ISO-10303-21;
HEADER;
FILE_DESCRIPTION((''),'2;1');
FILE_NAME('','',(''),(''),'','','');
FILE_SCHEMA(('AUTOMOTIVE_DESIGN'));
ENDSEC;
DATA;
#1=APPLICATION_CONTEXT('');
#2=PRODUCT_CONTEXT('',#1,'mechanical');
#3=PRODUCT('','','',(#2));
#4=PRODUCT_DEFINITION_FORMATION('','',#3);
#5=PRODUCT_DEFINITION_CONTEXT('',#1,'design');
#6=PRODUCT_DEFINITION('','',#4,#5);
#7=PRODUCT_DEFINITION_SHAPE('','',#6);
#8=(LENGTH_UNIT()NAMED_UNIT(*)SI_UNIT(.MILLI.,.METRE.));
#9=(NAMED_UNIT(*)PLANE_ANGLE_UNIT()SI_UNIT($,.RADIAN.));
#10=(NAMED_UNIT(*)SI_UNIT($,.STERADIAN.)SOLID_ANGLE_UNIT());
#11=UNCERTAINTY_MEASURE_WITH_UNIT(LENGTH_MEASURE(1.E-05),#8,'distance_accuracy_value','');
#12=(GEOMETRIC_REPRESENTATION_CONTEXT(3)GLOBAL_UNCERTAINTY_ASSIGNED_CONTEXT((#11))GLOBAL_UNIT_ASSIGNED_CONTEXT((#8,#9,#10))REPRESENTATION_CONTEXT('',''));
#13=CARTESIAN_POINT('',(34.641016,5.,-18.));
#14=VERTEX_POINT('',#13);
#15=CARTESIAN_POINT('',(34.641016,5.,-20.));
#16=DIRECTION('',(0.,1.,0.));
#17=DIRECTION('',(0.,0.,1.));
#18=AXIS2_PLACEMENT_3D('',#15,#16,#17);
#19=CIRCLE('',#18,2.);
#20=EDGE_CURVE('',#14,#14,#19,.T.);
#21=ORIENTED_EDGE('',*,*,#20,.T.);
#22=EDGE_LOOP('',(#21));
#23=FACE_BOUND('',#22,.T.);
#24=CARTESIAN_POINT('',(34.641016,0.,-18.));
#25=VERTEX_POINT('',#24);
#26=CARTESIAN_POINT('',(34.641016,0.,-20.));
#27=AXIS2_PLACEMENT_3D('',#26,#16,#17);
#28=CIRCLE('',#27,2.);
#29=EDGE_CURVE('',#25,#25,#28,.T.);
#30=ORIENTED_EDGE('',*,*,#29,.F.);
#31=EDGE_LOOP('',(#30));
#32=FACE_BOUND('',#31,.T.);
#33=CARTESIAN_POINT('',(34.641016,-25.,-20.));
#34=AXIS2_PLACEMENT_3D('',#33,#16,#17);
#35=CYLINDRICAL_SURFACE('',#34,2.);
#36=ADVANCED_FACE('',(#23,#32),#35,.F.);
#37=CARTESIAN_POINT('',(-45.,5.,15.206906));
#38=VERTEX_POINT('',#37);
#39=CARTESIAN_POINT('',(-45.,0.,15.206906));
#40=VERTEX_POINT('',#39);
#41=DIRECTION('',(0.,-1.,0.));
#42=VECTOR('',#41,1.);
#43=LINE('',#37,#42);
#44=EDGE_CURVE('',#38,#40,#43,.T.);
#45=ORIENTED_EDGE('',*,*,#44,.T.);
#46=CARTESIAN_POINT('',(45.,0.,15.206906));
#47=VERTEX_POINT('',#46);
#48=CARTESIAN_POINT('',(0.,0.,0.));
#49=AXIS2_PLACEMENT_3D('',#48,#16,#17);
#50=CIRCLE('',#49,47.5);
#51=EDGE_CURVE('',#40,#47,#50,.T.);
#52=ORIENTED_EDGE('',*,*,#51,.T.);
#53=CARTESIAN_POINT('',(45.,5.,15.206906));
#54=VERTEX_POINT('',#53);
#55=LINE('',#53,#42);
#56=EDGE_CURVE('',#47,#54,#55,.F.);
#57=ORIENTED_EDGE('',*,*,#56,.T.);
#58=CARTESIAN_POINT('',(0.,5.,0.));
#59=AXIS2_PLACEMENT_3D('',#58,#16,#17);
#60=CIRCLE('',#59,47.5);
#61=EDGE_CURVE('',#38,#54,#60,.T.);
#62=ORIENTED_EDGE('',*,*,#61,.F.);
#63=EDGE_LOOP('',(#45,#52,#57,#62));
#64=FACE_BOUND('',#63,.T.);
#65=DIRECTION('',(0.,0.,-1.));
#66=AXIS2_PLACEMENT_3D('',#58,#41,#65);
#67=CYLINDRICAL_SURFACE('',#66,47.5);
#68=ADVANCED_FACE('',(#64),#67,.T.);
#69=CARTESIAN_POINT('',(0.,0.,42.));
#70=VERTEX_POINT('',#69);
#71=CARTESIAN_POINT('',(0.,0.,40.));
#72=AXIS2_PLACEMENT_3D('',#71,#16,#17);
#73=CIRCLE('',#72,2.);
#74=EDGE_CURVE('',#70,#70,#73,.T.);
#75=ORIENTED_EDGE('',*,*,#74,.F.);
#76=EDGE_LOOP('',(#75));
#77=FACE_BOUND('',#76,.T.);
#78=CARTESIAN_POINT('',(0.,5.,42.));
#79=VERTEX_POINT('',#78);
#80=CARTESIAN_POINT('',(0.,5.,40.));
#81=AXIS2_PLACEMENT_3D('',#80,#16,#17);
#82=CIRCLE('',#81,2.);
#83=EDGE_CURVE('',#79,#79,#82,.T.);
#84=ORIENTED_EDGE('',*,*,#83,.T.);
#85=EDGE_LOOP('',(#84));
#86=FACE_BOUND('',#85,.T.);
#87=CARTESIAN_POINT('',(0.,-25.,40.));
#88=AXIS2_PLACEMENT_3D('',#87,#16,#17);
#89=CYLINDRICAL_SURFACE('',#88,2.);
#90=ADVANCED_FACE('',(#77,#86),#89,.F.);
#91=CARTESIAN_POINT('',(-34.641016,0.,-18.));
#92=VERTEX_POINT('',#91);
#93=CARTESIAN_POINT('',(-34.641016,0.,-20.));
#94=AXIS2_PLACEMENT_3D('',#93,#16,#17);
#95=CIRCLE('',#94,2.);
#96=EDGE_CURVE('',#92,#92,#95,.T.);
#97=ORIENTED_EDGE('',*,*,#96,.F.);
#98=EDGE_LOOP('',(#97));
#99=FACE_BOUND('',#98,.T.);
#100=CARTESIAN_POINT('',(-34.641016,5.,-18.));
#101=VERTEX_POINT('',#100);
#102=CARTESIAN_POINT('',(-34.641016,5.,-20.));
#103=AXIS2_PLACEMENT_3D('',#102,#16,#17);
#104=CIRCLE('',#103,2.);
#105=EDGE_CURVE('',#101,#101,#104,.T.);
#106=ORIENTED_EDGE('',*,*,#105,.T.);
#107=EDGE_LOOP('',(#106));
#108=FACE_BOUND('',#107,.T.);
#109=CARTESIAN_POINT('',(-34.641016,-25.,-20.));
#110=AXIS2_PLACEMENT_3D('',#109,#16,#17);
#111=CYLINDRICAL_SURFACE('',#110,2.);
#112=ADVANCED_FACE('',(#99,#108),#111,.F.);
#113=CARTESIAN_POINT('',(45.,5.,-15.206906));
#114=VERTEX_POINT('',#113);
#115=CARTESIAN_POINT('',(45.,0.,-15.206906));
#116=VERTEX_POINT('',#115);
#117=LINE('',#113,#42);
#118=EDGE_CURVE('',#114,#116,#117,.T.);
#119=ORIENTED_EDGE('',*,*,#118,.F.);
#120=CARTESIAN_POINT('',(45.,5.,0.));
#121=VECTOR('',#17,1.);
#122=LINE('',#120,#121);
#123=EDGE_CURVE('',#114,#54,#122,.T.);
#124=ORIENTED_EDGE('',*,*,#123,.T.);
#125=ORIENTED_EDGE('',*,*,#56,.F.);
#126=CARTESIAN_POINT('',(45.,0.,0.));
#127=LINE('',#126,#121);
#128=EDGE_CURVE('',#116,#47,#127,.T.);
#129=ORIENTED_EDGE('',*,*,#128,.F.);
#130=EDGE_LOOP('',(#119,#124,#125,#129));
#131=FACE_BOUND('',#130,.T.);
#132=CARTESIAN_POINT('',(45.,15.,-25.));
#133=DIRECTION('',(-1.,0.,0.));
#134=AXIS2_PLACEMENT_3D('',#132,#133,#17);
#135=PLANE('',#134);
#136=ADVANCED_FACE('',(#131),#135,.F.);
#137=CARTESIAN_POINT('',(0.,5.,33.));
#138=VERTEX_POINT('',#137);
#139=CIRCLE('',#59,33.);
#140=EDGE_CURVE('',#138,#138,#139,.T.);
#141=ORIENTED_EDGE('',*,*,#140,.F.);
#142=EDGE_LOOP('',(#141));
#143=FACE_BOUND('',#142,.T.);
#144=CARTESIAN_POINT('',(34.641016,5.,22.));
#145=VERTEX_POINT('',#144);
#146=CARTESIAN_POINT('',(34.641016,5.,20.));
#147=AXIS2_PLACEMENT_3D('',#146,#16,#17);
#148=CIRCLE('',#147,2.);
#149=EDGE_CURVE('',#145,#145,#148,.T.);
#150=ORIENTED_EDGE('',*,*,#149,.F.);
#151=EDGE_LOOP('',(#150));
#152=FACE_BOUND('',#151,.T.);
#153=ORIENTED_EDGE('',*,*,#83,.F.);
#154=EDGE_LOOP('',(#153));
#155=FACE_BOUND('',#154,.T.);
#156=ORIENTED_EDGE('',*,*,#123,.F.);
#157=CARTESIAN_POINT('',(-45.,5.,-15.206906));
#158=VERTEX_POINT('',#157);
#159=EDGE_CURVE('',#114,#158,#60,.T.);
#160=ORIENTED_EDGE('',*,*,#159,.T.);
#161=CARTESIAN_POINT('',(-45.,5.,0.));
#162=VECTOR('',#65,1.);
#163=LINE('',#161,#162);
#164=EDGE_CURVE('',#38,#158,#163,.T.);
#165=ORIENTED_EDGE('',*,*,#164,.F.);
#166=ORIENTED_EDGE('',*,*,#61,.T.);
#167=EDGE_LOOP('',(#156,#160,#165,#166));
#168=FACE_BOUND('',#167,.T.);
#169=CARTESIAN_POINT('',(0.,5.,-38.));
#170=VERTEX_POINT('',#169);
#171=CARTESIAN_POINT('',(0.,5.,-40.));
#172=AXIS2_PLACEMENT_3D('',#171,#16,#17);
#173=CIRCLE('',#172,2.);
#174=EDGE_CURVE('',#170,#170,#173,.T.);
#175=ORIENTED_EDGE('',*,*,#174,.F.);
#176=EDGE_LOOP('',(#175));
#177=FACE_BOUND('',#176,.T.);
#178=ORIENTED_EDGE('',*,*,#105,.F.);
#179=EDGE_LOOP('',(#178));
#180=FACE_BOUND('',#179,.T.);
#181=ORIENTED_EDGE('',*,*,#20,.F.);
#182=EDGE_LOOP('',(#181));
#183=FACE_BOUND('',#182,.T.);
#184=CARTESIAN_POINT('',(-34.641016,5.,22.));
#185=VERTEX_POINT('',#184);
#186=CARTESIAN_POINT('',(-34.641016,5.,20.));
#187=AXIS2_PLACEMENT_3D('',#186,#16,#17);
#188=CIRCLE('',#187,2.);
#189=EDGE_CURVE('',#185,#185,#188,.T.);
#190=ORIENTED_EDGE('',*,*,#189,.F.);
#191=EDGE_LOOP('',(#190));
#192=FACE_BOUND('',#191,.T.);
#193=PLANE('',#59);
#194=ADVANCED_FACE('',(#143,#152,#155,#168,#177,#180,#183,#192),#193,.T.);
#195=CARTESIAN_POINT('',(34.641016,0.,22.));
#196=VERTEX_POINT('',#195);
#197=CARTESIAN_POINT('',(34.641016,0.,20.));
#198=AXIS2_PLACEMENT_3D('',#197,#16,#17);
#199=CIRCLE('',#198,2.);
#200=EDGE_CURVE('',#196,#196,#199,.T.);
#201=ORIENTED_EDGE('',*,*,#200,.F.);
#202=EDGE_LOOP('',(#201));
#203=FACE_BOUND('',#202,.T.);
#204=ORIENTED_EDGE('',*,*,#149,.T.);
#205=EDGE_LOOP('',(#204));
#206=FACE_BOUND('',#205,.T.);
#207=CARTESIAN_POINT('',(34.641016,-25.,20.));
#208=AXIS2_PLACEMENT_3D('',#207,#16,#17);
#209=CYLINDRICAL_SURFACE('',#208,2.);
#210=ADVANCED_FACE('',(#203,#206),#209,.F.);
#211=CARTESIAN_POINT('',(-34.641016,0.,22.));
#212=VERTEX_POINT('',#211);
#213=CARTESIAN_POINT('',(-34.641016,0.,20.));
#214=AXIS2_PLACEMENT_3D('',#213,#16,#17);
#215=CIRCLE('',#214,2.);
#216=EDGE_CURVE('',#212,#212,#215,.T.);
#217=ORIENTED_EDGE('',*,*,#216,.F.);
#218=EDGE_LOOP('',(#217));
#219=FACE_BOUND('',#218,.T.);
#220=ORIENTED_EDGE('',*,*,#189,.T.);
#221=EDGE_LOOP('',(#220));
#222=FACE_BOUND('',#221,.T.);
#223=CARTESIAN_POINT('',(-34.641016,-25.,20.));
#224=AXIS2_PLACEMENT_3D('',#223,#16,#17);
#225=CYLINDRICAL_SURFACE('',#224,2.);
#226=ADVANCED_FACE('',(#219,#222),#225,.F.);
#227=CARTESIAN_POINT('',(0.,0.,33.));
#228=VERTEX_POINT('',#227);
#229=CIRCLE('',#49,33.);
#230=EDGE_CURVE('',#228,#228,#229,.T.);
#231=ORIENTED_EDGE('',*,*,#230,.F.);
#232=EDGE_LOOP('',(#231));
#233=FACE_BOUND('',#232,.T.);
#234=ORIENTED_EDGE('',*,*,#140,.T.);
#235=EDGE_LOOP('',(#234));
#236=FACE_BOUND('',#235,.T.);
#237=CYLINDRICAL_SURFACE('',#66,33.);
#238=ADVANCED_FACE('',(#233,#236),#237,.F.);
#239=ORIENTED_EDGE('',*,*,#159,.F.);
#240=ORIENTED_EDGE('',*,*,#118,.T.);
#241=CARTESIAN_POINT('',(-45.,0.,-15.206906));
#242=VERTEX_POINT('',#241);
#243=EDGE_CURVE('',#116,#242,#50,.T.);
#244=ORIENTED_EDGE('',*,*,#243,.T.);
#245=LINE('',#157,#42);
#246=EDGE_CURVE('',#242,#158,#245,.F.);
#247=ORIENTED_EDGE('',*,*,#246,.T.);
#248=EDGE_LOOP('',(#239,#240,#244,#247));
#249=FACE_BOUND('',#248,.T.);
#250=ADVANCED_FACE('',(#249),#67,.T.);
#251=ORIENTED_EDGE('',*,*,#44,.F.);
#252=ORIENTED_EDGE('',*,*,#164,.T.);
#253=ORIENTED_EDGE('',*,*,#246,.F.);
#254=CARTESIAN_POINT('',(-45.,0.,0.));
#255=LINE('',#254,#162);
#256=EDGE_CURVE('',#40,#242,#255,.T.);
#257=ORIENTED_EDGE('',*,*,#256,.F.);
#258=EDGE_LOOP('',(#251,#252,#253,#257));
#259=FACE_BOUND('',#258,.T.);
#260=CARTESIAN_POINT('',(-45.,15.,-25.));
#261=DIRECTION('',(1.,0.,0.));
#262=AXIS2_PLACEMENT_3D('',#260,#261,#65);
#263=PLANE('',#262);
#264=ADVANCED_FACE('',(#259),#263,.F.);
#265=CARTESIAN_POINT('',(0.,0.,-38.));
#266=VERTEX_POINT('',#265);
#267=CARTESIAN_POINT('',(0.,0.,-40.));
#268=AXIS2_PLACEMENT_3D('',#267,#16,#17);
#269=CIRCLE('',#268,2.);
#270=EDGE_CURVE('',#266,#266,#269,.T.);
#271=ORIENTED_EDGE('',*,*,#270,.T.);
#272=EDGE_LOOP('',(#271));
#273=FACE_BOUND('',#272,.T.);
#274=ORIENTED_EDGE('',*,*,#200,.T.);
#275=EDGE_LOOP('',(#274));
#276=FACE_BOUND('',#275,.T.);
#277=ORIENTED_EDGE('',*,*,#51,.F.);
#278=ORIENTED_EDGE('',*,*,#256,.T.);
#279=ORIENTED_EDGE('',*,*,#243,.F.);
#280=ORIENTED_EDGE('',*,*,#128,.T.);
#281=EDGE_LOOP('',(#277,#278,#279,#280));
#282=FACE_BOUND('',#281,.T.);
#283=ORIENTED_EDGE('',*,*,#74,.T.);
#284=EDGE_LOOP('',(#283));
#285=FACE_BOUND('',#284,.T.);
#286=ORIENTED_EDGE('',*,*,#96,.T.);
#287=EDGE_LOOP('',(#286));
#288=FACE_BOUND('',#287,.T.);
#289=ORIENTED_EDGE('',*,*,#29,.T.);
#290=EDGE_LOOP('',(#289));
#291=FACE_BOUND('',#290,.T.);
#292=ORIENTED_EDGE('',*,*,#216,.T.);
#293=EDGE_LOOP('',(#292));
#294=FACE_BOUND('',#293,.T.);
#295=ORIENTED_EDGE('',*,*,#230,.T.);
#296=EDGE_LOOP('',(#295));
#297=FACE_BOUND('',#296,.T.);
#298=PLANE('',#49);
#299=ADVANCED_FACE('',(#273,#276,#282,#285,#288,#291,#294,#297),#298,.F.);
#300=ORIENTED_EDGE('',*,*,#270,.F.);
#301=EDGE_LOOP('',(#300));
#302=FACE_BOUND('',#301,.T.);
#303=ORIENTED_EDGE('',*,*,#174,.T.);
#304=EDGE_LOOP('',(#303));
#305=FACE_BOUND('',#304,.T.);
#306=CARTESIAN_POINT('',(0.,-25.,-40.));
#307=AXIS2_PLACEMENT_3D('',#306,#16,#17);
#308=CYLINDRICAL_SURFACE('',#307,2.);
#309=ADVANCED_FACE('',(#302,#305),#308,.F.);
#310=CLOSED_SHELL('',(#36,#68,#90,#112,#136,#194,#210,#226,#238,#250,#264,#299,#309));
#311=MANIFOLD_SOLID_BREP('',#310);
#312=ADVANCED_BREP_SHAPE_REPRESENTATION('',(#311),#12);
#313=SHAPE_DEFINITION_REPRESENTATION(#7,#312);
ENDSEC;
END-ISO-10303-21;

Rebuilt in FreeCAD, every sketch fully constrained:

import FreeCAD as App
import Part
import Sketcher


def add_polygon(sketch, points):
    """Adds a closed chain of lines whose ends are joined by coincident constraints."""
    first, n = sketch.GeometryCount, len(points)
    for a, b in zip(points, points[1:] + points[:1]):
        sketch.addGeometry(Part.LineSegment(App.Vector(*a, 0), App.Vector(*b, 0)), False)
    for i in range(n):
        sketch.addConstraint(Sketcher.Constraint("Coincident", first + i, 2, first + (i + 1) % n, 1))

doc = App.newDocument("Part")
body = doc.addObject("PartDesign::Body", "Body")

# Sketch on XZ plane
sketch1 = body.newObject("Sketcher::SketchObject", "Sketch")
sketch1.AttachmentSupport = (doc.getObject("XZ_Plane"), [""])
sketch1.MapMode = "FlatFace"
sketch1.addGeometry(Part.Circle(App.Vector(0, 0, 0), App.Vector(0, 0, 1), 47.5), False)
sketch1.addGeometry(Part.Circle(App.Vector(0, 0, 0), App.Vector(0, 0, 1), 33), False)
sketch1.addConstraint(Sketcher.Constraint("Coincident", 0, 3, -1, 1))
sketch1.addConstraint(Sketcher.Constraint("Coincident", 1, 3, -1, 1))
sketch1.addConstraint(Sketcher.Constraint("Diameter", 0, 95.0))
sketch1.addConstraint(Sketcher.Constraint("Diameter", 1, 66.0))
pad1 = body.newObject("PartDesign::Pad", "Pad")
pad1.Profile = sketch1
pad1.Length = 5
pad1.Reversed = True

# Sketch on XY plane
sketch2 = body.newObject("Sketcher::SketchObject", "Sketch001")
sketch2.AttachmentSupport = (doc.getObject("XY_Plane"), [""])
sketch2.MapMode = "FlatFace"
add_polygon(sketch2, [(-55, 15), (-55, -5), (-45, -5), (-45, 15)])  # lines 0-3
add_polygon(sketch2, [(45, 15), (45, -5), (55, -5), (55, 15)])  # lines 4-7
sketch2.addConstraint(Sketcher.Constraint("Vertical", 0))
sketch2.addConstraint(Sketcher.Constraint("Horizontal", 1))
sketch2.addConstraint(Sketcher.Constraint("Vertical", 2))
sketch2.addConstraint(Sketcher.Constraint("Horizontal", 3))
sketch2.addConstraint(Sketcher.Constraint("Vertical", 4))
sketch2.addConstraint(Sketcher.Constraint("Horizontal", 5))
sketch2.addConstraint(Sketcher.Constraint("Vertical", 6))
sketch2.addConstraint(Sketcher.Constraint("Horizontal", 7))
sketch2.addConstraint(Sketcher.Constraint("Symmetric", 1, 2, 4, 2, -2))
sketch2.addConstraint(Sketcher.Constraint("Symmetric", 3, 2, 6, 2, -2))
sketch2.addConstraint(Sketcher.Constraint("DistanceX", 1, 1, 1, 2, 10.0))
sketch2.addConstraint(Sketcher.Constraint("DistanceY", 0, 2, 0, 1, 20.0))
sketch2.addConstraint(Sketcher.Constraint("DistanceX", 0, 2, -1, 1, 55.0))
sketch2.addConstraint(Sketcher.Constraint("DistanceY", 0, 2, -1, 1, 5.0))
pocket1 = body.newObject("PartDesign::Pocket", "Pocket")
pocket1.Profile = sketch2
pocket1.Length = 50
pocket1.Midplane = True

# Sketch on XZ plane
sketch3 = body.newObject("Sketcher::SketchObject", "Sketch002")
sketch3.AttachmentSupport = (doc.getObject("XZ_Plane"), [""])
sketch3.MapMode = "FlatFace"
sketch3.addGeometry(Part.Circle(App.Vector(0, -40, 0), App.Vector(0, 0, 1), 2), False)
sketch3.addGeometry(Part.Circle(App.Vector(0, 40, 0), App.Vector(0, 0, 1), 2), False)
sketch3.addConstraint(Sketcher.Constraint("Equal", 0, 1))
sketch3.addConstraint(Sketcher.Constraint("Symmetric", 0, 3, 1, 3, -1, 1))
sketch3.addConstraint(Sketcher.Constraint("PointOnObject", 0, 3, -2))
sketch3.addConstraint(Sketcher.Constraint("Diameter", 0, 4.0))
sketch3.addConstraint(Sketcher.Constraint("DistanceY", 0, 3, -1, 1, 40.0))
pocket2 = body.newObject("PartDesign::Pocket", "Pocket001")
pocket2.Profile = sketch3
pocket2.Length = 50
pocket2.Midplane = True
doc.recompute()

polarpattern = body.newObject("PartDesign::PolarPattern", "PolarPattern")
polarpattern.Originals = [pocket2]
polarpattern.Axis = (doc.getObject("Y_Axis"), [""])
polarpattern.Angle = 360
polarpattern.Occurrences = 3
body.Tip = polarpattern

doc.recompute()
